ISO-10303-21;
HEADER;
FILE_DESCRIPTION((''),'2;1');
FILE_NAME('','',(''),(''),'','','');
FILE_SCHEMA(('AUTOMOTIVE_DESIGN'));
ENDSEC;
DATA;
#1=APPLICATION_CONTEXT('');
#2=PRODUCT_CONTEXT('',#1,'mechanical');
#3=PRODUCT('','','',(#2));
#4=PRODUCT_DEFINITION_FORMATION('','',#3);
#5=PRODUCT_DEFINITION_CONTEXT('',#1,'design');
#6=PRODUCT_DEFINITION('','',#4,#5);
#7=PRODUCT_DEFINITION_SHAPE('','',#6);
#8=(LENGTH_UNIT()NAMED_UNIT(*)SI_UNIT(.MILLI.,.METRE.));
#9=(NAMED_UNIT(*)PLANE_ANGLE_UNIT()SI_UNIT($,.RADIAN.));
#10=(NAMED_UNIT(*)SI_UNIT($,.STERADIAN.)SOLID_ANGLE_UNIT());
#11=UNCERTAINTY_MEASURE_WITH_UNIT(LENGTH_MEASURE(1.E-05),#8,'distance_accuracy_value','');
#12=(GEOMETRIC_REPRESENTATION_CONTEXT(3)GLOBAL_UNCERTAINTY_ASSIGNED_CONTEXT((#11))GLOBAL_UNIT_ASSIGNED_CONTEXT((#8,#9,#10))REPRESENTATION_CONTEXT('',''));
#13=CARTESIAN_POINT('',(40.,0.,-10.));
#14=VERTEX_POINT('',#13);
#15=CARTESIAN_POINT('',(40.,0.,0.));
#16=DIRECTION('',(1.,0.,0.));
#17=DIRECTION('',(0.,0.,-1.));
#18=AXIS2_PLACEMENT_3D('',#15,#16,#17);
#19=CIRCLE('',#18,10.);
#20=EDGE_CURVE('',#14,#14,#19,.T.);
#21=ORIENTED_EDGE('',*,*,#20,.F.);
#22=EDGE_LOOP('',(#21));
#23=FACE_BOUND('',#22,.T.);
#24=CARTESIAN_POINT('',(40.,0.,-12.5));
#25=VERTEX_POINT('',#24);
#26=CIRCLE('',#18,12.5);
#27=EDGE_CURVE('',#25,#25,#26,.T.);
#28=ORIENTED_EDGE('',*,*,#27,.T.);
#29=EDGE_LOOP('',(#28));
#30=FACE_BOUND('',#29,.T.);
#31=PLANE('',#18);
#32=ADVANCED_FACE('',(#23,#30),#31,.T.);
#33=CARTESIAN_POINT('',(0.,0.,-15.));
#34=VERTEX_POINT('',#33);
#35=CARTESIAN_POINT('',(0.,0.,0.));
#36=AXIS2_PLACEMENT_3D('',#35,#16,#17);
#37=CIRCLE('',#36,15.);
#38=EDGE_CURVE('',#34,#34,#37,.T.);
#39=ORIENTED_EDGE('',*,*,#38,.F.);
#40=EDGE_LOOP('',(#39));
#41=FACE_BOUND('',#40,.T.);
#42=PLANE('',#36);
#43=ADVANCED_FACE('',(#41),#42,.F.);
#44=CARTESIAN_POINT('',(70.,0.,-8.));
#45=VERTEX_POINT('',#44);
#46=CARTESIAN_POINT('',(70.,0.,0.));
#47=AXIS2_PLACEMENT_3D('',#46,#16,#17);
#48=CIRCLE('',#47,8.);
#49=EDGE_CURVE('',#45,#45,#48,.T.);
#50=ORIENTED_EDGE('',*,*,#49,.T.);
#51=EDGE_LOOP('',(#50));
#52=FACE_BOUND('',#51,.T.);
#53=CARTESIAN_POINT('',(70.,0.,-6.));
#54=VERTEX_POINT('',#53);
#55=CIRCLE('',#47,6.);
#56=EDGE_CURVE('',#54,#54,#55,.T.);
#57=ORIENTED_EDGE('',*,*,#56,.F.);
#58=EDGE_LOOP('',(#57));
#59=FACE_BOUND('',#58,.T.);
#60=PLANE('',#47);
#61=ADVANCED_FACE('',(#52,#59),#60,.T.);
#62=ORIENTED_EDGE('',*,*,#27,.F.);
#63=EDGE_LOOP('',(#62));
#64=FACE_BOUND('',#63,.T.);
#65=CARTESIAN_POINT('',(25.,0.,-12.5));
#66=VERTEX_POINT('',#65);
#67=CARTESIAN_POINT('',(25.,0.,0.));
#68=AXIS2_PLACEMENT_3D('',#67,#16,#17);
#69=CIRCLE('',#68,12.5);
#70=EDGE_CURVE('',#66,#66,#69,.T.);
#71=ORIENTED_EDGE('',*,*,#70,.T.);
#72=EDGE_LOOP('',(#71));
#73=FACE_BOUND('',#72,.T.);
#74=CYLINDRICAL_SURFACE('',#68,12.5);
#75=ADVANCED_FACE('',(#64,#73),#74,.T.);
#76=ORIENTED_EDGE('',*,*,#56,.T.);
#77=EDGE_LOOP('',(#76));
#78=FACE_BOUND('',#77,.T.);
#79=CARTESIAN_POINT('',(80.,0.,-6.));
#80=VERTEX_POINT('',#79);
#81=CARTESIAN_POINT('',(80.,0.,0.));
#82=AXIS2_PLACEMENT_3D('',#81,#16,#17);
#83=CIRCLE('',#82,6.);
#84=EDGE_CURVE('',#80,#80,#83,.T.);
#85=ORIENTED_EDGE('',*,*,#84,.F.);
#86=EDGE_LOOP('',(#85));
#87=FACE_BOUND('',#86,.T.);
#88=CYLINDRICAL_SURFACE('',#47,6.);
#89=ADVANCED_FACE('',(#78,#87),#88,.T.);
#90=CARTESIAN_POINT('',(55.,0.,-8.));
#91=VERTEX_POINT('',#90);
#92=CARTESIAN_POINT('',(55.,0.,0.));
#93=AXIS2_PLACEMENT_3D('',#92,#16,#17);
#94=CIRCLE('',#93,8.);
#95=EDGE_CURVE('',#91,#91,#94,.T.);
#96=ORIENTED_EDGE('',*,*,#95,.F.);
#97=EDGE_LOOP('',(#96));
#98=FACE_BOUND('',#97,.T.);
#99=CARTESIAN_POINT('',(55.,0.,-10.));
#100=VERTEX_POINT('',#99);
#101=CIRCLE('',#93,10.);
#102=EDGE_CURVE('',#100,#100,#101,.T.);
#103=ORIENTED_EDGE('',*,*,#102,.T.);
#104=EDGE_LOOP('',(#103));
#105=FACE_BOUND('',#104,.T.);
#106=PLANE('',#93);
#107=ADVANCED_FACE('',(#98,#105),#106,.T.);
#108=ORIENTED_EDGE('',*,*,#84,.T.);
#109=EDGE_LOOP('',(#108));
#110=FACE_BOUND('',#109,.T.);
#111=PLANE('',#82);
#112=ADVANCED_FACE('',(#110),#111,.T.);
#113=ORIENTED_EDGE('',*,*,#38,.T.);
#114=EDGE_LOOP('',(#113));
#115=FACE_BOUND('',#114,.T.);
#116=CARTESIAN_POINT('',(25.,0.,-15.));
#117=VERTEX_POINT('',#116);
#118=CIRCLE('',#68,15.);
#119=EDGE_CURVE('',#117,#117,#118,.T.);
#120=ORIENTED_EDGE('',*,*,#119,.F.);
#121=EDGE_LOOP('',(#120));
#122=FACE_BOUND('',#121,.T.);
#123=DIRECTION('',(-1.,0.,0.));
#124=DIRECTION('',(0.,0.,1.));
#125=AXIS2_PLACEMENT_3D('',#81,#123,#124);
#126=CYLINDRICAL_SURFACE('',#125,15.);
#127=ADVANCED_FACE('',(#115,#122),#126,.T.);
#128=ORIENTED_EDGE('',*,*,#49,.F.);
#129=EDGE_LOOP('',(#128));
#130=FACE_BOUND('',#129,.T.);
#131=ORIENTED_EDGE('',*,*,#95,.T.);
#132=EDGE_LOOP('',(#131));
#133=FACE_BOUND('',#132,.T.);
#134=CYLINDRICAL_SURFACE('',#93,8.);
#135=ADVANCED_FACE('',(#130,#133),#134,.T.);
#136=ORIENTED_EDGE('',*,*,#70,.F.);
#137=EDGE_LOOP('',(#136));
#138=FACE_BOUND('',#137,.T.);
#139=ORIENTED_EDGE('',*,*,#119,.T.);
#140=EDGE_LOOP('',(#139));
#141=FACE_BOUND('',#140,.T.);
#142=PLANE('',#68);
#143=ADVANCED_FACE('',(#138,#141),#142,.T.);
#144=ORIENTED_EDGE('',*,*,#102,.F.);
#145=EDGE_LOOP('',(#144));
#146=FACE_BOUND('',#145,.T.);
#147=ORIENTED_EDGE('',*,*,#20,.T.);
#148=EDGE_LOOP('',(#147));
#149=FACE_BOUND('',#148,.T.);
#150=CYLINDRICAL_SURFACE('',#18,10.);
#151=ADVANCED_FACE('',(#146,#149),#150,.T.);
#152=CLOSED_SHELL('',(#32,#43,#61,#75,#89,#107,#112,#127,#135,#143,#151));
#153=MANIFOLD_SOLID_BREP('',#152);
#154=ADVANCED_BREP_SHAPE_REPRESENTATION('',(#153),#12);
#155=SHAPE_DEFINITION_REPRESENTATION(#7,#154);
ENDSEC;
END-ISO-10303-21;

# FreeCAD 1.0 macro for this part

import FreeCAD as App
import Part
import Sketcher

V = App.Vector
Q = App.Units.Quantity

doc = App.newDocument("Part")
body = doc.addObject("PartDesign::Body", "Body")

# Sketch on YZ plane
sketch1 = body.newObject("Sketcher::SketchObject", "Sketch")
sketch1.AttachmentSupport = (doc.getObject("YZ_Plane"), [""])
sketch1.MapMode = "FlatFace"
sketch1.addGeometry(Part.Circle(V(0, 0, 0), V(0, 0, 1), 15), False)
sketch1.addConstraint([
    Sketcher.Constraint("Coincident", 0, 3, -1, 1),
    Sketcher.Constraint("Diameter", 0, Q("30 mm")),
])
pad1 = body.newObject("PartDesign::Pad", "Pad")
pad1.Profile = sketch1
pad1.Length = 80

# Sketch on YZ plane
sketch2 = body.newObject("Sketcher::SketchObject", "Sketch001")
sketch2.AttachmentSupport = (doc.getObject("YZ_Plane"), [""])
sketch2.MapMode = "FlatFace"
sketch2.AttachmentOffset = App.Placement(V(0, 0, 25), App.Rotation())
sketch2.addGeometry([
    Part.Circle(V(0, 0, 0), V(0, 0, 1), 15),
    Part.Circle(V(0, 0, 0), V(0, 0, 1), 12),
], False)
sketch2.addConstraint([
    Sketcher.Constraint("Coincident", 0, 3, -1, 1),
    Sketcher.Constraint("Coincident", 1, 3, -1, 1),
    Sketcher.Constraint("Diameter", 0, Q("30 mm")),
    Sketcher.Constraint("Diameter", 1, Q("25 mm")),
])
pocket1 = body.newObject("PartDesign::Pocket", "Pocket")
pocket1.Profile = sketch2
pocket1.Length = 55
pocket1.Reversed = True

# Sketch on YZ plane
sketch3 = body.newObject("Sketcher::SketchObject", "Sketch002")
sketch3.AttachmentSupport = (doc.getObject("YZ_Plane"), [""])
sketch3.MapMode = "FlatFace"
sketch3.AttachmentOffset = App.Placement(V(0, 0, 40), App.Rotation())
sketch3.addGeometry([
    Part.Circle(V(0, 0, 0), V(0, 0, 1), 12),
    Part.Circle(V(0, 0, 0), V(0, 0, 1), 10),
], False)
sketch3.addConstraint([
    Sketcher.Constraint("Coincident", 0, 3, -1, 1),
    Sketcher.Constraint("Coincident", 1, 3, -1, 1),
    Sketcher.Constraint("Diameter", 0, Q("25 mm")),
    Sketcher.Constraint("Diameter", 1, Q("20 mm")),
])
pocket2 = body.newObject("PartDesign::Pocket", "Pocket001")
pocket2.Profile = sketch3
pocket2.Length = 40
pocket2.Reversed = True

# Sketch on YZ plane
sketch4 = body.newObject("Sketcher::SketchObject", "Sketch003")
sketch4.AttachmentSupport = (doc.getObject("YZ_Plane"), [""])
sketch4.MapMode = "FlatFace"
sketch4.AttachmentOffset = App.Placement(V(0, 0, 55), App.Rotation())
sketch4.addGeometry([
    Part.Circle(V(0, 0, 0), V(0, 0, 1), 10),
    Part.Circle(V(0, 0, 0), V(0, 0, 1), 8),
], False)
sketch4.addConstraint([
    Sketcher.Constraint("Coincident", 0, 3, -1, 1),
    Sketcher.Constraint("Coincident", 1, 3, -1, 1),
    Sketcher.Constraint("Diameter", 0, Q("20 mm")),
    Sketcher.Constraint("Diameter", 1, Q("16 mm")),
])
pocket3 = body.newObject("PartDesign::Pocket", "Pocket002")
pocket3.Profile = sketch4
pocket3.Length = 25
pocket3.Reversed = True

# Sketch on YZ plane
sketch5 = body.newObject("Sketcher::SketchObject", "Sketch004")
sketch5.AttachmentSupport = (doc.getObject("YZ_Plane"), [""])
sketch5.MapMode = "FlatFace"
sketch5.AttachmentOffset = App.Placement(V(0, 0, 70), App.Rotation())
sketch5.addGeometry([
    Part.Circle(V(0, 0, 0), V(0, 0, 1), 8),
    Part.Circle(V(0, 0, 0), V(0, 0, 1), 6),
], False)
sketch5.addConstraint([
    Sketcher.Constraint("Coincident", 0, 3, -1, 1),
    Sketcher.Constraint("Coincident", 1, 3, -1, 1),
    Sketcher.Constraint("Diameter", 0, Q("16 mm")),
    Sketcher.Constraint("Diameter", 1, Q("12 mm")),
])
pocket4 = body.newObject("PartDesign::Pocket", "Pocket003")
pocket4.Profile = sketch5
pocket4.Length = 10
pocket4.Reversed = True

doc.recompute()
